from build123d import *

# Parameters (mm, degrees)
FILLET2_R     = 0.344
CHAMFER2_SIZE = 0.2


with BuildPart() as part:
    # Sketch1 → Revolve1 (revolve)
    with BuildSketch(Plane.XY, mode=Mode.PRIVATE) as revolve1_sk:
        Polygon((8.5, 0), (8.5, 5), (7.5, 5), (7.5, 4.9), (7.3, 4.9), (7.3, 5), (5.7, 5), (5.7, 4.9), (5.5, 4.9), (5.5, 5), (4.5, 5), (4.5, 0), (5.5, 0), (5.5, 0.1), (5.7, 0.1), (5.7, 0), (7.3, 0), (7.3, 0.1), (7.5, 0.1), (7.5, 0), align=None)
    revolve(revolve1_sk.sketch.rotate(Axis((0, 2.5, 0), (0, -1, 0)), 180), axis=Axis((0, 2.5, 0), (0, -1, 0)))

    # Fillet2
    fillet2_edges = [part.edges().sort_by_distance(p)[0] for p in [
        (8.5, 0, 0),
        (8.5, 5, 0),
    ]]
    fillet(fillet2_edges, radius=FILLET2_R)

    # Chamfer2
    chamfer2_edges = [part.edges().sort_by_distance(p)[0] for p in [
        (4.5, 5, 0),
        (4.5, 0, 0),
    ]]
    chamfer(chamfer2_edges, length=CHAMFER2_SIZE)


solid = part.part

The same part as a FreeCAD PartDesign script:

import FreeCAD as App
import Part
import Sketcher

V = App.Vector


def edges_at(feature, points):
    """Names of the edges that pass closest to the given points."""
    edges = feature.Shape.Edges
    near = lambda p: min(range(len(edges)), key=lambda i: edges[i].distToShape(Part.Vertex(*p))[0])
    return sorted({f"Edge{near(p) + 1}" for p in points})

doc = App.newDocument("Part")
body = doc.addObject("PartDesign::Body", "Body")

# Sketch on XY plane
sketch1 = body.newObject("Sketcher::SketchObject", "Sketch")
sketch1.AttachmentSupport = (doc.getObject("XY_Plane"), [""])
sketch1.MapMode = "FlatFace"
sketch1.addGeometry([
    Part.LineSegment(V(8.5, 0, 0), V(8.5, 5, 0)),  # 0
    Part.LineSegment(V(8.5, 5, 0), V(7.5, 5, 0)),  # 1
    Part.LineSegment(V(7.5, 5, 0), V(7.5, 4.9, 0)),  # 2
    Part.LineSegment(V(7.5, 4.9, 0), V(7.3, 4.9, 0)),  # 3
    Part.LineSegment(V(7.3, 4.9, 0), V(7.3, 5, 0)),  # 4
    Part.LineSegment(V(7.3, 5, 0), V(5.7, 5, 0)),  # 5
    Part.LineSegment(V(5.7, 5, 0), V(5.7, 4.9, 0)),  # 6
    Part.LineSegment(V(5.7, 4.9, 0), V(5.5, 4.9, 0)),  # 7
    Part.LineSegment(V(5.5, 4.9, 0), V(5.5, 5, 0)),  # 8
    Part.LineSegment(V(5.5, 5, 0), V(4.5, 5, 0)),  # 9
    Part.LineSegment(V(4.5, 5, 0), V(4.5, 0, 0)),  # 10
    Part.LineSegment(V(4.5, 0, 0), V(5.5, 0, 0)),  # 11
    Part.LineSegment(V(5.5, 0, 0), V(5.5, 0.1, 0)),  # 12
    Part.LineSegment(V(5.5, 0.1, 0), V(5.7, 0.1, 0)),  # 13
    Part.LineSegment(V(5.7, 0.1, 0), V(5.7, 0, 0)),  # 14
    Part.LineSegment(V(5.7, 0, 0), V(7.3, 0, 0)),  # 15
    Part.LineSegment(V(7.3, 0, 0), V(7.3, 0.1, 0)),  # 16
    Part.LineSegment(V(7.3, 0.1, 0), V(7.5, 0.1, 0)),  # 17
    Part.LineSegment(V(7.5, 0.1, 0), V(7.5, 0, 0)),  # 18
    Part.LineSegment(V(7.5, 0, 0), V(8.5, 0, 0)),  # 19
], False)
sketch1.addConstraint([
    Sketcher.Constraint("Coincident", 0, 2, 1, 1),
    Sketcher.Constraint("Coincident", 1, 2, 2, 1),
    Sketcher.Constraint("Coincident", 2, 2, 3, 1),
    Sketcher.Constraint("Coincident", 3, 2, 4, 1),
    Sketcher.Constraint("Coincident", 4, 2, 5, 1),
    Sketcher.Constraint("Coincident", 5, 2, 6, 1),
    Sketcher.Constraint("Coincident", 6, 2, 7, 1),
    Sketcher.Constraint("Coincident", 7, 2, 8, 1),
    Sketcher.Constraint("Coincident", 8, 2, 9, 1),
    Sketcher.Constraint("Coincident", 9, 2, 10, 1),
    Sketcher.Constraint("Coincident", 10, 2, 11, 1),
    Sketcher.Constraint("Coincident", 11, 2, 12, 1),
    Sketcher.Constraint("Coincident", 12, 2, 13, 1),
    Sketcher.Constraint("Coincident", 13, 2, 14, 1),
    Sketcher.Constraint("Coincident", 14, 2, 15, 1),
    Sketcher.Constraint("Coincident", 15, 2, 16, 1),
    Sketcher.Constraint("Coincident", 16, 2, 17, 1),
    Sketcher.Constraint("Coincident", 17, 2, 18, 1),
    Sketcher.Constraint("Coincident", 18, 2, 19, 1),
    Sketcher.Constraint("Coincident", 19, 2, 0, 1),
    Sketcher.Constraint("Vertical", 0),
    Sketcher.Constraint("Horizontal", 1),
    Sketcher.Constraint("Vertical", 2),
    Sketcher.Constraint("Horizontal", 3),
    Sketcher.Constraint("Vertical", 4),
    Sketcher.Constraint("Horizontal", 5),
    Sketcher.Constraint("Vertical", 6),
    Sketcher.Constraint("Horizontal", 7),
    Sketcher.Constraint("Vertical", 8),
    Sketcher.Constraint("Horizontal", 9),
    Sketcher.Constraint("Vertical", 10),
    Sketcher.Constraint("Horizontal", 11),
    Sketcher.Constraint("Vertical", 12),
    Sketcher.Constraint("Horizontal", 13),
    Sketcher.Constraint("Vertical", 14),
    Sketcher.Constraint("Horizontal", 15),
    Sketcher.Constraint("Vertical", 16),
    Sketcher.Constraint("Horizontal", 17),
    Sketcher.Constraint("Vertical", 18),
    Sketcher.Constraint("Horizontal", 19),
    Sketcher.Constraint("PointOnObject", 10, 2, -1),
    Sketcher.Constraint("PointOnObject", 14, 2, -1),
    Sketcher.Constraint("PointOnObject", 18, 2, -1),
    Sketcher.Constraint("Horizontal", 1, 2, 4, 2),
    Sketcher.Constraint("Horizontal", 3, 2, 6, 2),
    Sketcher.Constraint("Horizontal", 5, 2, 8, 2),
    Sketcher.Constraint("Horizontal", 13, 2, 16, 2),
    Sketcher.Constraint("Vertical", 8, 2, 11, 2),
    Sketcher.Constraint("Vertical", 6, 2, 13, 2),
    Sketcher.Constraint("Vertical", 4, 2, 15, 2),
    Sketcher.Constraint("Vertical", 2, 2, 17, 2),
    Sketcher.Constraint("Equal", 3, 7),
    Sketcher.Constraint("Equal", 1, 9),
    Sketcher.Constraint("Equal", 8, 12),
    Sketcher.Constraint("DistanceX", 1, 2, 1, 1, 1.0),
    Sketcher.Constraint("DistanceY", 0, 1, 0, 2, 5.0),
    Sketcher.Constraint("DistanceX", 3, 2, 3, 1, 0.2),
    Sketcher.Constraint("DistanceX", 5, 2, 5, 1, 1.6),
    Sketcher.Constraint("DistanceY", 2, 2, 2, 1, 0.1),
    Sketcher.Constraint("DistanceX", -1, 1, 0, 2, 8.5),
])
revolution = body.newObject("PartDesign::Revolution", "Revolution")
revolution.Profile = sketch1
revolution.ReferenceAxis = (sketch1, ["V_Axis"])
revolution.Angle = 360
doc.recompute()

fillet = body.newObject("PartDesign::Fillet", "Fillet")
fillet.Base = (revolution, edges_at(revolution, [(8.5, 0, 0), (8.5, 5, 0)]))
fillet.Radius = 0.344
doc.recompute()

chamfer = body.newObject("PartDesign::Chamfer", "Chamfer")
chamfer.Base = (fillet, edges_at(fillet, [(4.5, 5, 0), (4.5, 0, 0)]))
chamfer.Size = 0.2

doc.recompute()
